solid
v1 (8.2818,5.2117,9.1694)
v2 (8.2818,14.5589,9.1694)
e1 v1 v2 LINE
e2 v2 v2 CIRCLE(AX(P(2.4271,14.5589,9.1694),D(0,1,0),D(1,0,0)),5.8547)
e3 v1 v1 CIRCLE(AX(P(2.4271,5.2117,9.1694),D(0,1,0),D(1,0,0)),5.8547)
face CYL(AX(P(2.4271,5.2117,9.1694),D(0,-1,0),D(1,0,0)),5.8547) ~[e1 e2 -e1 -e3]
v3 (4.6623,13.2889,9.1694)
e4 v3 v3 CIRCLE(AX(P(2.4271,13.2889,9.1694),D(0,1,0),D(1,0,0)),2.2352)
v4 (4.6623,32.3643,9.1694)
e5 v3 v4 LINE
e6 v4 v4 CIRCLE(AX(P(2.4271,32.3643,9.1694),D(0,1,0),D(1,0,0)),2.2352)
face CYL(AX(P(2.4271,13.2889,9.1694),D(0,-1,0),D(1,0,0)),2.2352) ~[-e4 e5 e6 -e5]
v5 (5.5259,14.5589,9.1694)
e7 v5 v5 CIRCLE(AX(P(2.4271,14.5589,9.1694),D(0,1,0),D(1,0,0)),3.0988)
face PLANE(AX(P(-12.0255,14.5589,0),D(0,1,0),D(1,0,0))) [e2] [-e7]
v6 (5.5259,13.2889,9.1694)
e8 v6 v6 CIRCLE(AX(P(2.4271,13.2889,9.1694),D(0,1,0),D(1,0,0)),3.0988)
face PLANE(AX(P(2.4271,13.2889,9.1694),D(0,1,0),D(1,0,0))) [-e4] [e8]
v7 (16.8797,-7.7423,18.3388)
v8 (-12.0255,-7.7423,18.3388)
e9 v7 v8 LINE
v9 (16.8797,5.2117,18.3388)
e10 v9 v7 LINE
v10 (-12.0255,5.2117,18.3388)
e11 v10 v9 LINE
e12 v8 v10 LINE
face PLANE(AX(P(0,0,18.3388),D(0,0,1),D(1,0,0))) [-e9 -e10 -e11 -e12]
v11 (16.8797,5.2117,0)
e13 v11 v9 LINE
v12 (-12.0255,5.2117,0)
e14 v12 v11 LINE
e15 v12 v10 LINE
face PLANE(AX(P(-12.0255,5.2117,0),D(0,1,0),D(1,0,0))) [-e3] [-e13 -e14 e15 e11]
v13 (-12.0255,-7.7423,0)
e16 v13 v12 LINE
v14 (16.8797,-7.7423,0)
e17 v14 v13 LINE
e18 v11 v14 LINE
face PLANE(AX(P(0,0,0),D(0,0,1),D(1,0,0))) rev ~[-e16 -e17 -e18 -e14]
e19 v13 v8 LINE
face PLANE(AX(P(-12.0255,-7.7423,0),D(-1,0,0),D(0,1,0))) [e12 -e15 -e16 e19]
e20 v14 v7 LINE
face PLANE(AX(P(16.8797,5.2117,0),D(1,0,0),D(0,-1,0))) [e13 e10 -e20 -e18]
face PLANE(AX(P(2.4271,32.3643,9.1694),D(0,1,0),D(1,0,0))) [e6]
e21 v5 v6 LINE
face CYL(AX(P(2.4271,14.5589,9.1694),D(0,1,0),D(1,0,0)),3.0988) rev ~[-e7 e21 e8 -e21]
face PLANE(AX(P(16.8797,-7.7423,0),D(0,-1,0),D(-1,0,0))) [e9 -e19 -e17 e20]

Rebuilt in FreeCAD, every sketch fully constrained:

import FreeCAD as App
import Part
import Sketcher

V = App.Vector
Q = App.Units.Quantity

doc = App.newDocument("Part")
params = doc.addObject("Spreadsheet::Sheet", "Params")
for row, (alias, value) in enumerate([
    ("sketch1_height", "0.51 in"),
    ("sketch1_width", "1.138 in"),
    ("pad1_length", "0.722 in"),
    ("sketch2_diameter", "0.461 in"),
    ("pad2_length", "0.368 in"),
    ("sketch3_diameter", "0.244 in"),
    ("pocket1_length", "0.05 in"),
    ("sketch4_diameter", "0.176 in"),
    ("pad3_length", "0.751 in"),
], start=1):
    params.set(f"A{row}", alias)
    params.set(f"B{row}", "=" + value)
    params.setAlias(f"B{row}", alias)

body = doc.addObject("PartDesign::Body", "Body")

sketch1 = body.newObject("Sketcher::SketchObject", "Sketch")
sketch1.AttachmentSupport = (doc.getObject("XY_Plane"), [""])
sketch1.MapMode = "FlatFace"
sketch1.addGeometry([
    Part.LineSegment(V(16.8797, 5.2117, 0), V(-12.0255, 5.2117, 0)),
    Part.LineSegment(V(-12.0255, 5.2117, 0), V(-12.0255, -7.7423, 0)),
    Part.LineSegment(V(-12.0255, -7.7423, 0), V(16.8797, -7.7423, 0)),
    Part.LineSegment(V(16.8797, -7.7423, 0), V(16.8797, 5.2117, 0)),
], False)
sketch1.addConstraint([
    Sketcher.Constraint("Coincident", 0, 2, 1, 1),
    Sketcher.Constraint("Coincident", 1, 2, 2, 1),
    Sketcher.Constraint("Coincident", 2, 2, 3, 1),
    Sketcher.Constraint("Coincident", 3, 2, 0, 1),
    Sketcher.Constraint("Horizontal", 0),
    Sketcher.Constraint("Vertical", 1),
    Sketcher.Constraint("Horizontal", 2),
    Sketcher.Constraint("Vertical", 3),
    Sketcher.Constraint("DistanceY", 1, 2, 1, 1, Q("0.51 in")),
    Sketcher.Constraint("DistanceX", 0, 2, 0, 1, Q("1.138 in")),
    Sketcher.Constraint("DistanceX", 0, 2, -1, 1, 12.0255),
    Sketcher.Constraint("DistanceY", -1, 1, 0, 2, 5.2117),
])
sketch1.setExpression("Constraints[8]", "Params.sketch1_height")
sketch1.setExpression("Constraints[9]", "Params.sketch1_width")
pad1 = body.newObject("PartDesign::Pad", "Pad")
pad1.Profile = sketch1
pad1.setExpression("Length", "Params.pad1_length")

sketch2 = body.newObject("Sketcher::SketchObject", "Sketch001")
sketch2.AttachmentSupport = (doc.getObject("XZ_Plane"), [""])
sketch2.MapMode = "FlatFace"
sketch2.AttachmentOffset = App.Placement(V(0, 0, -5.2117), App.Rotation())
sketch2.addGeometry(Part.Circle(V(2.4271, 9.1694, 0), V(0, 0, 1), 5.8547), False)
sketch2.addConstraint([
    Sketcher.Constraint("Diameter", 0, Q("0.461 in")),
    Sketcher.Constraint("DistanceY", -1, 1, 0, 3, Q("0.361 in")),
    Sketcher.Constraint("DistanceX", -1, 1, 0, 3, 2.427),
])
sketch2.setExpression("Constraints[0]", "Params.sketch2_diameter")
pad2 = body.newObject("PartDesign::Pad", "Pad001")
pad2.Profile = sketch2
pad2.setExpression("Length", "Params.pad2_length")
pad2.Reversed = True

sketch3 = body.newObject("Sketcher::SketchObject", "Sketch002")
sketch3.AttachmentSupport = (doc.getObject("XZ_Plane"), [""])
sketch3.MapMode = "FlatFace"
sketch3.AttachmentOffset = App.Placement(V(0, 0, -14.5589), App.Rotation())
sketch3.addGeometry(Part.Circle(V(2.4271, 9.1694, 0), V(0, 0, 1), 3.0988), False)
sketch3.addConstraint([
    Sketcher.Constraint("Diameter", 0, Q("0.244 in")),
    Sketcher.Constraint("DistanceY", -1, 1, 0, 3, Q("0.361 in")),
    Sketcher.Constraint("DistanceX", -1, 1, 0, 3, 2.427),
])
sketch3.setExpression("Constraints[0]", "Params.sketch3_diameter")
pocket1 = body.newObject("PartDesign::Pocket", "Pocket")
pocket1.Profile = sketch3
pocket1.setExpression("Length", "Params.pocket1_length")
pocket1.Reversed = True

sketch4 = body.newObject("Sketcher::SketchObject", "Sketch003")
sketch4.AttachmentSupport = (doc.getObject("XZ_Plane"), [""])
sketch4.MapMode = "FlatFace"
sketch4.AttachmentOffset = App.Placement(V(0, 0, -13.2889), App.Rotation())
sketch4.addGeometry(Part.Circle(V(2.4271, 9.1694, 0), V(0, 0, 1), 2.2352), False)
sketch4.addConstraint([
    Sketcher.Constraint("Diameter", 0, Q("0.176 in")),
    Sketcher.Constraint("DistanceY", -1, 1, 0, 3, Q("0.361 in")),
    Sketcher.Constraint("DistanceX", -1, 1, 0, 3, 2.427),
])
sketch4.setExpression("Constraints[0]", "Params.sketch4_diameter")
pad3 = body.newObject("PartDesign::Pad", "Pad002")
pad3.Profile = sketch4
pad3.setExpression("Length", "Params.pad3_length")
pad3.Reversed = True

doc.recompute()
